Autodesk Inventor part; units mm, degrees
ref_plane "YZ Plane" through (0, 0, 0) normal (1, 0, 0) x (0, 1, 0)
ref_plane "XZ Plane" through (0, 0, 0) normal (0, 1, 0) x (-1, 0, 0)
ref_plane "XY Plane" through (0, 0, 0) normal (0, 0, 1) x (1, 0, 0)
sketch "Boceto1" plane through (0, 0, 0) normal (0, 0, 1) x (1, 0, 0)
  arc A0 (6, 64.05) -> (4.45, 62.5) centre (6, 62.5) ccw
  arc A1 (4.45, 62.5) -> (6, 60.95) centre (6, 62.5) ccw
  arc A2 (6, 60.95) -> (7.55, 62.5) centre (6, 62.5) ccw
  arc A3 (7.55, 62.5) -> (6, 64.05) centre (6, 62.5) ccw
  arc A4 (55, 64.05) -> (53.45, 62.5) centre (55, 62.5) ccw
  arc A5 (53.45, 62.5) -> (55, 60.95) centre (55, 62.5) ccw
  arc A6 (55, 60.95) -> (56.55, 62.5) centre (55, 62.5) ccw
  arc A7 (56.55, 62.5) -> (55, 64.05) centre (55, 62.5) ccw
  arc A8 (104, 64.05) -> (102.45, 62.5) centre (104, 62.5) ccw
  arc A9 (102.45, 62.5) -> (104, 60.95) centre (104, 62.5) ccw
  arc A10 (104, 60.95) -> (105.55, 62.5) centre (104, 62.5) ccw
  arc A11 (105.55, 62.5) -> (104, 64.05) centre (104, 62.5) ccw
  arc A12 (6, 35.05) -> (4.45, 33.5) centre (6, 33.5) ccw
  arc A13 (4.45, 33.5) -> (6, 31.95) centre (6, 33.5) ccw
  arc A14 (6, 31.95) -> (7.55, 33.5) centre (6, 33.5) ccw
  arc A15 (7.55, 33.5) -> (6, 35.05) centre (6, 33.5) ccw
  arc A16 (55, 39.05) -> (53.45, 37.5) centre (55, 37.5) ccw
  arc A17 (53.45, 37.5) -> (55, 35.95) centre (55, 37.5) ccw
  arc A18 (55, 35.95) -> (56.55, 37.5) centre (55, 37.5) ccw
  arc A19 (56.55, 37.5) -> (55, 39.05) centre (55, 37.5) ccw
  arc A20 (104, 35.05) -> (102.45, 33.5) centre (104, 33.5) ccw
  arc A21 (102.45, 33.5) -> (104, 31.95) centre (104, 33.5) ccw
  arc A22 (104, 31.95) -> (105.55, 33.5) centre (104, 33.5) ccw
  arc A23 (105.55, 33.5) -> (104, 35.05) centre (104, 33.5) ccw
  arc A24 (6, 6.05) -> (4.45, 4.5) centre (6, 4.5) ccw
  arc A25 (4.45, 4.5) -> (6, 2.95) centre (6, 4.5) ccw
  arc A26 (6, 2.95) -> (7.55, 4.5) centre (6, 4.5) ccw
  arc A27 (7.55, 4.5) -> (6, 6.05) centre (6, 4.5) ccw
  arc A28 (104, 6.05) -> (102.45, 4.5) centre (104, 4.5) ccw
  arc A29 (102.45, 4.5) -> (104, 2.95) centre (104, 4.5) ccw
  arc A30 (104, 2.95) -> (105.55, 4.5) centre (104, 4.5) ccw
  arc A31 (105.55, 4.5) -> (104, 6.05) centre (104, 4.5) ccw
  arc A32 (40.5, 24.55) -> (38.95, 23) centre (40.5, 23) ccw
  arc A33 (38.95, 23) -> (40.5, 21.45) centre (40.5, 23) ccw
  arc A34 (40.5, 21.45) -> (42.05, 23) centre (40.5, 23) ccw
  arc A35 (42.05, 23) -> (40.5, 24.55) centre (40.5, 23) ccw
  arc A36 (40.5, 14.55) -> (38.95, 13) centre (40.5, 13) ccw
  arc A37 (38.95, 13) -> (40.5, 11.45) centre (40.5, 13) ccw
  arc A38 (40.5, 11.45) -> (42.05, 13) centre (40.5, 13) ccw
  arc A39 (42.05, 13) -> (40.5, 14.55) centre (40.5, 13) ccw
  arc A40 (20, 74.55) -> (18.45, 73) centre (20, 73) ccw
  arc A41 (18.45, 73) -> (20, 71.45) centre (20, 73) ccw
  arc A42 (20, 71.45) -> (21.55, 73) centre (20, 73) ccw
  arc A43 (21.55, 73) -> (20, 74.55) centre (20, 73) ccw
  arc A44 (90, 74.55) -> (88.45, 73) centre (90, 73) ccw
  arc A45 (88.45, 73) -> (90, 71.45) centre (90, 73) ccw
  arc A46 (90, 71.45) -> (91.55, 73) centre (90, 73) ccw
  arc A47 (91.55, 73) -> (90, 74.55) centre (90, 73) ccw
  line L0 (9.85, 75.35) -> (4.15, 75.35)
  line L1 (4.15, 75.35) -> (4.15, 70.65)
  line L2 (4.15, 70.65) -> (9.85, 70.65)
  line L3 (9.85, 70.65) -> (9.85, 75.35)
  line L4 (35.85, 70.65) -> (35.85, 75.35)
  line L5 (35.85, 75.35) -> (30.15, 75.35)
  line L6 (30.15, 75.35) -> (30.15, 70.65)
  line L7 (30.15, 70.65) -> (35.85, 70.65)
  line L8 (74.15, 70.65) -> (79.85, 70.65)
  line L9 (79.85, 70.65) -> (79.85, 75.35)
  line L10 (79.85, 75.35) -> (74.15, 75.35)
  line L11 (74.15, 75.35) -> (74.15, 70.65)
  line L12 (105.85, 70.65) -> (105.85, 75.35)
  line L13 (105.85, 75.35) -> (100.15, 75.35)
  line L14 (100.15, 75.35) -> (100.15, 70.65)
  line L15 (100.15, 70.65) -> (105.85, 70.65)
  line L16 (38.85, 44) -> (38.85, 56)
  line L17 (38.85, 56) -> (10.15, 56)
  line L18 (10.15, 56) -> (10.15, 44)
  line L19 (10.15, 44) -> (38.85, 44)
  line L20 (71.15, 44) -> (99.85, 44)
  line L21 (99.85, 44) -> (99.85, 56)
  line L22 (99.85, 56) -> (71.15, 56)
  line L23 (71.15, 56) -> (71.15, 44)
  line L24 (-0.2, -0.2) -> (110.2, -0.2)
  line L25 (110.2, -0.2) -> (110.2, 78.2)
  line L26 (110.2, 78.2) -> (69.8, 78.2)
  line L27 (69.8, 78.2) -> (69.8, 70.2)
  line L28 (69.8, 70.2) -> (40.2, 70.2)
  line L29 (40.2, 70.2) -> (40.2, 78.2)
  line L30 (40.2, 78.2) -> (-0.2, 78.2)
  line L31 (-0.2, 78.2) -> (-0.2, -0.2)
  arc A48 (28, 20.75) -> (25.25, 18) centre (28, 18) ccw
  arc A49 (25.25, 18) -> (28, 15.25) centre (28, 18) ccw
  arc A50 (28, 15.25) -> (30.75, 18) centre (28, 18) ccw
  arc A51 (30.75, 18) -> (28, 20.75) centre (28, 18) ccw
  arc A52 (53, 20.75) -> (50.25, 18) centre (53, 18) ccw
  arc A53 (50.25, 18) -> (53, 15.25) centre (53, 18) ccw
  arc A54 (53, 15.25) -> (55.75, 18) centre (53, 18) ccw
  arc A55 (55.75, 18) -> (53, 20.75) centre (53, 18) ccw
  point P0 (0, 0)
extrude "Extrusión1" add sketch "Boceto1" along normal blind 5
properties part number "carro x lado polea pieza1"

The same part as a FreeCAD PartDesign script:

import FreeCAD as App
import Part
import Sketcher
from FreeCAD import Vector


def add_polygon(sketch, points):
    """Adds a closed chain of lines whose ends are joined by coincident constraints."""
    first, n = sketch.GeometryCount, len(points)
    for a, b in zip(points, points[1:] + points[:1]):
        sketch.addGeometry(Part.LineSegment(App.Vector(*a, 0), App.Vector(*b, 0)), False)
    for i in range(n):
        sketch.addConstraint(Sketcher.Constraint("Coincident", first + i, 2, first + (i + 1) % n, 1))

doc = App.newDocument("Part")
body = doc.addObject("PartDesign::Body", "Body")

# Sketch on XY plane
sketch1 = doc.addObject("Sketcher::SketchObject", "Sketch")
body.addObject(sketch1)
sketch1.AttachmentSupport = (doc.XY_Plane, [""])
sketch1.MapMode = "FlatFace"
add_polygon(sketch1, [(-0.2, 78.2), (-0.2, -0.2), (110.2, -0.2), (110.2, 78.2), (69.8, 78.2), (69.8, 70.2), (40.2, 70.2), (40.2, 78.2)])  # lines 0-7
sketch1.addGeometry(Part.Circle(Vector(6, 4.5, 0), Vector(0, 0, 1), 1.55), False)  # 8
sketch1.addGeometry(Part.Circle(Vector(40.5, 13, 0), Vector(0, 0, 1), 1.55), False)  # 9
sketch1.addGeometry(Part.Circle(Vector(28, 18, 0), Vector(0, 0, 1), 2.75), False)  # 10
sketch1.addGeometry(Part.Circle(Vector(53, 18, 0), Vector(0, 0, 1), 2.75), False)  # 11
sketch1.addGeometry(Part.Circle(Vector(6, 33.5, 0), Vector(0, 0, 1), 1.55), False)  # 12
sketch1.addGeometry(Part.Circle(Vector(40.5, 23, 0), Vector(0, 0, 1), 1.55), False)  # 13
sketch1.addGeometry(Part.Circle(Vector(104, 4.5, 0), Vector(0, 0, 1), 1.55), False)  # 14
sketch1.addGeometry(Part.Circle(Vector(55, 37.5, 0), Vector(0, 0, 1), 1.55), False)  # 15
sketch1.addGeometry(Part.Circle(Vector(104, 33.5, 0), Vector(0, 0, 1), 1.55), False)  # 16
add_polygon(sketch1, [(38.85, 56), (38.85, 44), (10.15, 44), (10.15, 56)])  # lines 17-20
sketch1.addGeometry(Part.Circle(Vector(6, 62.5, 0), Vector(0, 0, 1), 1.55), False)  # 21
add_polygon(sketch1, [(4.15, 75.35), (9.85, 75.35), (9.85, 70.65), (4.15, 70.65)])  # lines 22-25
sketch1.addGeometry(Part.Circle(Vector(20, 73, 0), Vector(0, 0, 1), 1.55), False)  # 26
add_polygon(sketch1, [(35.85, 75.35), (35.85, 70.65), (30.15, 70.65), (30.15, 75.35)])  # lines 27-30
add_polygon(sketch1, [(99.85, 44), (71.15, 44), (71.15, 56), (99.85, 56)])  # lines 31-34
sketch1.addGeometry(Part.Circle(Vector(55, 62.5, 0), Vector(0, 0, 1), 1.55), False)  # 35
add_polygon(sketch1, [(79.85, 70.65), (74.15, 70.65), (74.15, 75.35), (79.85, 75.35)])  # lines 36-39
sketch1.addGeometry(Part.Circle(Vector(104, 62.5, 0), Vector(0, 0, 1), 1.55), False)  # 40
sketch1.addGeometry(Part.Circle(Vector(90, 73, 0), Vector(0, 0, 1), 1.55), False)  # 41
add_polygon(sketch1, [(105.85, 75.35), (105.85, 70.65), (100.15, 70.65), (100.15, 75.35)])  # lines 42-45
sketch1.addConstraint(Sketcher.Constraint("Vertical", 0))
sketch1.addConstraint(Sketcher.Constraint("Horizontal", 1))
sketch1.addConstraint(Sketcher.Constraint("Vertical", 2))
sketch1.addConstraint(Sketcher.Constraint("Horizontal", 3))
sketch1.addConstraint(Sketcher.Constraint("Vertical", 4))
sketch1.addConstraint(Sketcher.Constraint("Horizontal", 5))
sketch1.addConstraint(Sketcher.Constraint("Vertical", 6))
sketch1.addConstraint(Sketcher.Constraint("Horizontal", 7))
sketch1.addConstraint(Sketcher.Constraint("Vertical", 17))
sketch1.addConstraint(Sketcher.Constraint("Horizontal", 18))
sketch1.addConstraint(Sketcher.Constraint("Vertical", 19))
sketch1.addConstraint(Sketcher.Constraint("Horizontal", 20))
sketch1.addConstraint(Sketcher.Constraint("Horizontal", 22))
sketch1.addConstraint(Sketcher.Constraint("Vertical", 23))
sketch1.addConstraint(Sketcher.Constraint("Horizontal", 24))
sketch1.addConstraint(Sketcher.Constraint("Vertical", 25))
sketch1.addConstraint(Sketcher.Constraint("Vertical", 27))
sketch1.addConstraint(Sketcher.Constraint("Horizontal", 28))
sketch1.addConstraint(Sketcher.Constraint("Vertical", 29))
sketch1.addConstraint(Sketcher.Constraint("Horizontal", 30))
sketch1.addConstraint(Sketcher.Constraint("Horizontal", 31))
sketch1.addConstraint(Sketcher.Constraint("Vertical", 32))
sketch1.addConstraint(Sketcher.Constraint("Horizontal", 33))
sketch1.addConstraint(Sketcher.Constraint("Vertical", 34))
sketch1.addConstraint(Sketcher.Constraint("Horizontal", 36))
sketch1.addConstraint(Sketcher.Constraint("Vertical", 37))
sketch1.addConstraint(Sketcher.Constraint("Horizontal", 38))
sketch1.addConstraint(Sketcher.Constraint("Vertical", 39))
sketch1.addConstraint(Sketcher.Constraint("Vertical", 42))
sketch1.addConstraint(Sketcher.Constraint("Horizontal", 43))
sketch1.addConstraint(Sketcher.Constraint("Vertical", 44))
sketch1.addConstraint(Sketcher.Constraint("Horizontal", 45))
sketch1.addConstraint(Sketcher.Constraint("Equal", 8, 9))
sketch1.addConstraint(Sketcher.Constraint("Equal", 10, 11))
sketch1.addConstraint(Sketcher.Constraint("Equal", 9, 12))
sketch1.addConstraint(Sketcher.Constraint("Equal", 12, 13))
sketch1.addConstraint(Sketcher.Constraint("Equal", 13, 14))
sketch1.addConstraint(Sketcher.Constraint("Equal", 14, 15))
sketch1.addConstraint(Sketcher.Constraint("Equal", 15, 16))
sketch1.addConstraint(Sketcher.Constraint("Equal", 16, 21))
sketch1.addConstraint(Sketcher.Constraint("Equal", 21, 26))
sketch1.addConstraint(Sketcher.Constraint("Equal", 26, 35))
sketch1.addConstraint(Sketcher.Constraint("Equal", 35, 40))
sketch1.addConstraint(Sketcher.Constraint("Equal", 40, 41))
sketch1.addConstraint(Sketcher.Constraint("Horizontal", 10, 3, 11, 3))
sketch1.addConstraint(Sketcher.Constraint("Horizontal", 8, 3, 14, 3))
sketch1.addConstraint(Sketcher.Constraint("Horizontal", 12, 3, 16, 3))
sketch1.addConstraint(Sketcher.Constraint("Horizontal", 21, 3, 35, 3))
sketch1.addConstraint(Sketcher.Constraint("Horizontal", 35, 3, 40, 3))
sketch1.addConstraint(Sketcher.Constraint("Horizontal", 26, 3, 41, 3))
sketch1.addConstraint(Sketcher.Constraint("Horizontal", 3, 2, 6, 2))
sketch1.addConstraint(Sketcher.Constraint("Horizontal", 24, 2, 27, 2))
sketch1.addConstraint(Sketcher.Constraint("Horizontal", 25, 2, 29, 2))
sketch1.addConstraint(Sketcher.Constraint("Horizontal", 18, 2, 31, 2))
sketch1.addConstraint(Sketcher.Constraint("Horizontal", 20, 2, 32, 2))
sketch1.addConstraint(Sketcher.Constraint("Horizontal", 28, 2, 36, 2))
sketch1.addConstraint(Sketcher.Constraint("Horizontal", 30, 2, 37, 2))
sketch1.addConstraint(Sketcher.Constraint("Horizontal", 39, 2, 42, 2))
sketch1.addConstraint(Sketcher.Constraint("Horizontal", 38, 2, 44, 2))
sketch1.addConstraint(Sketcher.Constraint("Vertical", 8, 3, 12, 3))
sketch1.addConstraint(Sketcher.Constraint("Vertical", 9, 3, 13, 3))
sketch1.addConstraint(Sketcher.Constraint("Vertical", 14, 3, 16, 3))
sketch1.addConstraint(Sketcher.Constraint("Vertical", 12, 3, 21, 3))
sketch1.addConstraint(Sketcher.Constraint("Vertical", 15, 3, 35, 3))
sketch1.addConstraint(Sketcher.Constraint("Vertical", 16, 3, 40, 3))
sketch1.addConstraint(Sketcher.Constraint("Equal", 3, 7))
sketch1.addConstraint(Sketcher.Constraint("Equal", 24, 28))
sketch1.addConstraint(Sketcher.Constraint("Equal", 20, 31))
sketch1.addConstraint(Sketcher.Constraint("Equal", 30, 36))
sketch1.addConstraint(Sketcher.Constraint("Equal", 38, 43))
sketch1.addConstraint(Sketcher.Constraint("Diameter", 8, 3.1))
sketch1.addConstraint(Sketcher.Constraint("Diameter", 10, 5.5))
sketch1.addConstraint(Sketcher.Constraint("DistanceY", 4, 2, 4, 1, 8.0))
sketch1.addConstraint(Sketcher.Constraint("DistanceY", 17, 2, 17, 1, 12.0))
sketch1.addConstraint(Sketcher.Constraint("DistanceX", 1, 1, 1, 2, 110.4))
sketch1.addConstraint(Sketcher.Constraint("DistanceX", 3, 2, 3, 1, 40.4))
sketch1.addConstraint(Sketcher.Constraint("DistanceX", 18, 2, 18, 1, 28.7))
sketch1.addConstraint(Sketcher.Constraint("DistanceX", 22, 1, 22, 2, 5.7))
sketch1.addConstraint(Sketcher.Constraint("DistanceY", 0, 2, 0, 1, 78.4))
sketch1.addConstraint(Sketcher.Constraint("DistanceY", 23, 2, 23, 1, 4.7))
sketch1.addConstraint(Sketcher.Constraint("DistanceX", -1, 1, 8, 3, 6.0))
sketch1.addConstraint(Sketcher.Constraint("DistanceY", -1, 1, 9, 3, 13.0))
sketch1.addConstraint(Sketcher.Constraint("DistanceX", -1, 1, 10, 3, 28.0))
sketch1.addConstraint(Sketcher.Constraint("DistanceY", -1, 1, 10, 3, 18.0))
sketch1.addConstraint(Sketcher.Constraint("DistanceX", -1, 1, 11, 3, 53.0))
sketch1.addConstraint(Sketcher.Constraint("DistanceY", -1, 1, 13, 3, 23.0))
sketch1.addConstraint(Sketcher.Constraint("DistanceX", -1, 1, 14, 3, 104.0))
sketch1.addConstraint(Sketcher.Constraint("DistanceX", -1, 1, 15, 3, 55.0))
sketch1.addConstraint(Sketcher.Constraint("DistanceX", -1, 1, 26, 3, 20.0))
sketch1.addConstraint(Sketcher.Constraint("DistanceY", -1, 1, 26, 3, 73.0))
sketch1.addConstraint(Sketcher.Constraint("DistanceX", -1, 1, 41, 3, 90.0))
sketch1.addConstraint(Sketcher.Constraint("DistanceY", -1, 1, 17, 2, 44.0))
sketch1.addConstraint(Sketcher.Constraint("DistanceY", 8, 3, 12, 3, 29.0))
sketch1.addConstraint(Sketcher.Constraint("DistanceY", 12, 3, 15, 3, 4.0))
sketch1.addConstraint(Sketcher.Constraint("DistanceY", 12, 3, 21, 3, 29.0))
sketch1.addConstraint(Sketcher.Constraint("DistanceX", 24, 2, 19, 2, 6.0))
sketch1.addConstraint(Sketcher.Constraint("DistanceX", 27, 2, 20, 2, 3.0))
sketch1.addConstraint(Sketcher.Constraint("DistanceX", 32, 2, 36, 2, 3.0))
sketch1.addConstraint(Sketcher.Constraint("DistanceX", 33, 2, 42, 2, 6.0))
sketch1.addConstraint(Sketcher.Constraint("DistanceY", -1, 1, 8, 3, 4.5))
sketch1.addConstraint(Sketcher.Constraint("DistanceX", -1, 1, 9, 3, 40.5))
sketch1.addConstraint(Sketcher.Constraint("DistanceX", 0, 2, -1, 1, 0.2))
sketch1.addConstraint(Sketcher.Constraint("DistanceY", 0, 2, -1, 1, 0.2))
sketch1.addConstraint(Sketcher.Constraint("DistanceX", 17, 2, 31, 2, 32.3))
sketch1.addConstraint(Sketcher.Constraint("DistanceX", -1, 1, 17, 2, 38.85))
sketch1.addConstraint(Sketcher.Constraint("DistanceY", -1, 1, 22, 2, 75.35))
pad1 = doc.addObject("PartDesign::Pad", "Pad")
body.addObject(pad1)
pad1.Profile = sketch1
pad1.Length = 5

doc.recompute()
